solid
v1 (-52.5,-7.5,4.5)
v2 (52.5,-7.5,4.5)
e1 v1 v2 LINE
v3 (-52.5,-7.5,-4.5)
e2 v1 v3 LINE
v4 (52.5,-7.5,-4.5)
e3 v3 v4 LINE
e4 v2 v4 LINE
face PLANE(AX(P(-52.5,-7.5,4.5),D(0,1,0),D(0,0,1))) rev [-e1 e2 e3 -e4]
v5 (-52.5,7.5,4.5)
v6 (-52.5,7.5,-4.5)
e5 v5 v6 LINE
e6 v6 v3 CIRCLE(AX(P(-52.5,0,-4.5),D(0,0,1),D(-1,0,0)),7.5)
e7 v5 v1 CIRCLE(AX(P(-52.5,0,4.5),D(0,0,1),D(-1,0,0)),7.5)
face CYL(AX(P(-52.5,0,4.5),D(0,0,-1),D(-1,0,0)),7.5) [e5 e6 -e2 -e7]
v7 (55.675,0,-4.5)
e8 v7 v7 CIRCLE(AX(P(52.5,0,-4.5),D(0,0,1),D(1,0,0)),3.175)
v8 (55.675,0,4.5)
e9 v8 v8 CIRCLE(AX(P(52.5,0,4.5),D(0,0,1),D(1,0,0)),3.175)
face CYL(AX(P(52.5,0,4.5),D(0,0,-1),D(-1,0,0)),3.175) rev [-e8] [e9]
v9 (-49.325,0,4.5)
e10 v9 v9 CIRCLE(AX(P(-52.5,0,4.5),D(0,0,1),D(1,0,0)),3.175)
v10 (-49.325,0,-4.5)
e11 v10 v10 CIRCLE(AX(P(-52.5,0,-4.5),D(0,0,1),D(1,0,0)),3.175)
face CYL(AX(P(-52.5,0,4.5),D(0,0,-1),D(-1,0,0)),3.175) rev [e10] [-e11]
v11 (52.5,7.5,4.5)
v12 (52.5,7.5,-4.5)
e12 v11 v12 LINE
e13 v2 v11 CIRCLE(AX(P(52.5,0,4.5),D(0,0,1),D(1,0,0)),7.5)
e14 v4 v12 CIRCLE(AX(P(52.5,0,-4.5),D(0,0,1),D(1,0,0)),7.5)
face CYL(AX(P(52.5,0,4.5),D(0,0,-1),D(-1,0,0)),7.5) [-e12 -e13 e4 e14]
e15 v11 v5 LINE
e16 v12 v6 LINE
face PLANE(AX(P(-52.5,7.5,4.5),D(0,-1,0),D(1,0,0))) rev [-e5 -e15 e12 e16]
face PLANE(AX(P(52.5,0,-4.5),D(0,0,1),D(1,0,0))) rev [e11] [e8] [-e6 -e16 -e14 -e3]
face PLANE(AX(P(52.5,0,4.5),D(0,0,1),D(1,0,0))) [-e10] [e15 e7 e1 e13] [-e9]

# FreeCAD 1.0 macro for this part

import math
import FreeCAD as App
import Part
import Sketcher
from FreeCAD import Vector

doc = App.newDocument("Part")
body = doc.addObject("PartDesign::Body", "Body")

# Sketch on XY plane
sketch1 = body.newObject("Sketcher::SketchObject", "Sketch")
sketch1.AttachmentSupport = (doc.getObject("XY_Plane"), [""])
sketch1.MapMode = "FlatFace"
sketch1.addGeometry([
    Part.LineSegment(Vector(52.5, 7.5, 0), Vector(-52.5, 7.5, 0)),  # 0
    Part.ArcOfCircle(Part.Circle(Vector(-52.5, 0, 0), Vector(0, 0, 1), 7.5), math.radians(90), math.radians(270)),  # 1
    Part.LineSegment(Vector(-52.5, -7.5, 0), Vector(52.5, -7.5, 0)),  # 2
    Part.ArcOfCircle(Part.Circle(Vector(52.5, 0, 0), Vector(0, 0, 1), 7.5), math.radians(-90), math.radians(90)),  # 3
    Part.Circle(Vector(52.5, 0, 0), Vector(0, 0, 1), 3.2),  # 4
    Part.Circle(Vector(-52.5, 0, 0), Vector(0, 0, 1), 3.2),  # 5
], False)
sketch1.addConstraint([
    Sketcher.Constraint("Tangent", 0, 2, 1, 1),
    Sketcher.Constraint("Tangent", 1, 2, 2, 1),
    Sketcher.Constraint("Tangent", 2, 2, 3, 1),
    Sketcher.Constraint("Tangent", 3, 2, 0, 1),
    Sketcher.Constraint("Horizontal", 0),
    Sketcher.Constraint("Horizontal", 2),
    Sketcher.Constraint("Coincident", 4, 3, 3, 3),
    Sketcher.Constraint("Coincident", 5, 3, 1, 3),
    Sketcher.Constraint("Equal", 4, 5),
    Sketcher.Constraint("Symmetric", 1, 3, 3, 3, -1, 1),
    Sketcher.Constraint("Radius", 1, 7.5),
    Sketcher.Constraint("Diameter", 4, 6.35),
    Sketcher.Constraint("DistanceX", 0, 2, 0, 1, 105.0),
])
pad1 = body.newObject("PartDesign::Pad", "Pad")
pad1.Profile = sketch1
pad1.Length = 9
pad1.Midplane = True

doc.recompute()
